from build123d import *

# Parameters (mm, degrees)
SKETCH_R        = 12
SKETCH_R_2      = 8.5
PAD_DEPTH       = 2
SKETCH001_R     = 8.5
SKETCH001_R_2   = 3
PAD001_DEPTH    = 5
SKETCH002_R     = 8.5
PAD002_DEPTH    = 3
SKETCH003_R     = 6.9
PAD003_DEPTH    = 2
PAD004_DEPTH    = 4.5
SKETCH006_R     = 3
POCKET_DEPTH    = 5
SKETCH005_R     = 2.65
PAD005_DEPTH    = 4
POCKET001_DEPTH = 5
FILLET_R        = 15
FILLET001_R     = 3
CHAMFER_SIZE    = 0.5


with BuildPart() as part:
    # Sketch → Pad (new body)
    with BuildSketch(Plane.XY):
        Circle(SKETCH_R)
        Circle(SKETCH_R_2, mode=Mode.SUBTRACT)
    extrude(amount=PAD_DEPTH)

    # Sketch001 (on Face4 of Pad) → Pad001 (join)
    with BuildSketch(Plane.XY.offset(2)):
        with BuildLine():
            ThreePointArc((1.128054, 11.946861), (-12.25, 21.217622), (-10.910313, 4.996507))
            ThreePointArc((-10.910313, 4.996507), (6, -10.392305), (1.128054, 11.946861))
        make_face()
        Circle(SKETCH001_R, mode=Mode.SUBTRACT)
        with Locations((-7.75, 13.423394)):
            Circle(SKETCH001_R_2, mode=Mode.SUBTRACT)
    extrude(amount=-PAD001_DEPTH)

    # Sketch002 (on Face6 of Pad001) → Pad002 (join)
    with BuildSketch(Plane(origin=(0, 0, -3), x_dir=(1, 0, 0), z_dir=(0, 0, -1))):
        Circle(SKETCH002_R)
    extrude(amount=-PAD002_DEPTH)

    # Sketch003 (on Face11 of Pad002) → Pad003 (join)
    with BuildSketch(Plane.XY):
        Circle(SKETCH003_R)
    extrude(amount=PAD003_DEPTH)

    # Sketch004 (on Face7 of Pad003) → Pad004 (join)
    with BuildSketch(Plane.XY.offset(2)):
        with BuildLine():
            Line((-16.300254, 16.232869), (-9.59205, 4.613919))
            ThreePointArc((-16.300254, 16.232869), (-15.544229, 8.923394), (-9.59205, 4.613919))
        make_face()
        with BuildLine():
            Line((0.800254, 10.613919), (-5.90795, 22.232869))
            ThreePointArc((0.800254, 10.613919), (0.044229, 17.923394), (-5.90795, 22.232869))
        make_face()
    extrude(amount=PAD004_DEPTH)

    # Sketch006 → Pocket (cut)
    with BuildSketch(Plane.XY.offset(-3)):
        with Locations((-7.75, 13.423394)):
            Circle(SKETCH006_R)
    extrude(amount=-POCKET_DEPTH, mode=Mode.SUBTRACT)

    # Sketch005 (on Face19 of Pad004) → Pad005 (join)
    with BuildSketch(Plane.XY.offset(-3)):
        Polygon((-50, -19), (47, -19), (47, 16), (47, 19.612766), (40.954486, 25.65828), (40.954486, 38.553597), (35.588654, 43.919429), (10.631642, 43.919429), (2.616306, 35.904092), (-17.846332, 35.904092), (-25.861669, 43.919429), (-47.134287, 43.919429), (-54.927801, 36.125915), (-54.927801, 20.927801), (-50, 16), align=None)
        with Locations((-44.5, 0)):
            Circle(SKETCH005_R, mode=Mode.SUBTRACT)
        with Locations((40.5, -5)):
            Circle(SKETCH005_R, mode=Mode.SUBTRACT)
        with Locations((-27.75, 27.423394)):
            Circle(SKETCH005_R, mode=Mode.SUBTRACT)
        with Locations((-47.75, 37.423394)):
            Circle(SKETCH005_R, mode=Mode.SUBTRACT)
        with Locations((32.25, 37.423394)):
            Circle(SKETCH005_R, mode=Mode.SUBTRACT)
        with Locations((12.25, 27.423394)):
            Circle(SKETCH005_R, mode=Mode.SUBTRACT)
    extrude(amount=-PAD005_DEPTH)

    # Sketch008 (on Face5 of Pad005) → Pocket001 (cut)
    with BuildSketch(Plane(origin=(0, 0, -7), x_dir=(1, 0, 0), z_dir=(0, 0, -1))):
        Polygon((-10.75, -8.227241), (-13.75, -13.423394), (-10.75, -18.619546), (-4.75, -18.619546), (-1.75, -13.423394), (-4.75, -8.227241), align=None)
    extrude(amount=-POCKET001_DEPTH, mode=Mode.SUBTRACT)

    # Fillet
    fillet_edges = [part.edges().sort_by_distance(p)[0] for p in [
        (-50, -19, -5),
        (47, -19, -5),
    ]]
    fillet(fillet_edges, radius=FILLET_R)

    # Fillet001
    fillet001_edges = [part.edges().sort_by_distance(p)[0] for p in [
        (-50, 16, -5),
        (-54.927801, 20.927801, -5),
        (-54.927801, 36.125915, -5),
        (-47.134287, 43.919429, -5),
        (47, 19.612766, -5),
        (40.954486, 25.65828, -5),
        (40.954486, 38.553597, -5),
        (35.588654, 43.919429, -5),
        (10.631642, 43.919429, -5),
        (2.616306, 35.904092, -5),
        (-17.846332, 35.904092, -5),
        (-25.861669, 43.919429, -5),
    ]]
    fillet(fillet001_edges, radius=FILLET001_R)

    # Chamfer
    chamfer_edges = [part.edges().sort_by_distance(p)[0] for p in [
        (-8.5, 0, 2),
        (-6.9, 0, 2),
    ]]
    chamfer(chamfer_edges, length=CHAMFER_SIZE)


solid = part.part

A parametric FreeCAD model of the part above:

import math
import FreeCAD as App
import Part
import Sketcher
Q = App.Units.Quantity


def edges_at(feature, points):
    """Names of the edges that pass closest to the given points."""
    edges = feature.Shape.Edges
    near = lambda p: min(range(len(edges)), key=lambda i: edges[i].distToShape(Part.Vertex(*p))[0])
    return sorted({f"Edge{near(p) + 1}" for p in points})


def add_polygon(sketch, points):
    """Adds a closed chain of lines whose ends are joined by coincident constraints."""
    first, n = sketch.GeometryCount, len(points)
    for a, b in zip(points, points[1:] + points[:1]):
        sketch.addGeometry(Part.LineSegment(App.Vector(*a, 0), App.Vector(*b, 0)), False)
    for i in range(n):
        sketch.addConstraint(Sketcher.Constraint("Coincident", first + i, 2, first + (i + 1) % n, 1))

doc = App.newDocument("Part")
body = doc.addObject("PartDesign::Body", "Body")

# Sketch on XY plane
sketch1 = body.newObject("Sketcher::SketchObject", "Sketch")
sketch1.AttachmentSupport = (doc.getObject("XY_Plane"), [""])
sketch1.MapMode = "FlatFace"
sketch1.addGeometry(Part.Circle(App.Vector(0, 0, 0), App.Vector(0, 0, 1), 12), False)
sketch1.addGeometry(Part.Circle(App.Vector(0, 0, 0), App.Vector(0, 0, 1), 8), False)
sketch1.addConstraint(Sketcher.Constraint("Coincident", 0, 3, -1, 1))
sketch1.addConstraint(Sketcher.Constraint("Coincident", 1, 3, -1, 1))
sketch1.addConstraint(Sketcher.Constraint("Diameter", 0, 24.0))
sketch1.addConstraint(Sketcher.Constraint("Diameter", 1, 17.0))
pad1 = body.newObject("PartDesign::Pad", "Pad")
pad1.Profile = sketch1
pad1.Length = 2

# Sketch on XY plane
sketch2 = body.newObject("Sketcher::SketchObject", "Sketch001")
sketch2.AttachmentSupport = (doc.getObject("XY_Plane"), [""])
sketch2.MapMode = "FlatFace"
sketch2.AttachmentOffset = App.Placement(App.Vector(0, 0, 2), App.Rotation())
sketch2.addGeometry(Part.ArcOfCircle(Part.Circle(App.Vector(-7.8, 13.4, 0), App.Vector(0, 0, 1), 9), math.radians(-9), math.radians(249)), False)
sketch2.addGeometry(Part.ArcOfCircle(Part.Circle(App.Vector(0, 0, 0), App.Vector(0, 0, 1), 12), math.radians(155), math.radians(445)), False)
sketch2.addGeometry(Part.Circle(App.Vector(0, 0, 0), App.Vector(0, 0, 1), 8.5), False)
sketch2.addGeometry(Part.Circle(App.Vector(-7.8, 13.4, 0), App.Vector(0, 0, 1), 3), False)
sketch2.addConstraint(Sketcher.Constraint("Coincident", 0, 1, 1, 2))
sketch2.addConstraint(Sketcher.Constraint("Coincident", 1, 1, 0, 2))
sketch2.addConstraint(Sketcher.Constraint("Coincident", 1, 3, -1, 1))
sketch2.addConstraint(Sketcher.Constraint("Coincident", 2, 3, -1, 1))
sketch2.addConstraint(Sketcher.Constraint("Coincident", 3, 3, 0, 3))
sketch2.addConstraint(Sketcher.Constraint("Diameter", 2, 17.0))
sketch2.addConstraint(Sketcher.Constraint("Diameter", 3, 6.0))
sketch2.addConstraint(Sketcher.Constraint("Radius", 0, 9.0))
sketch2.addConstraint(Sketcher.Constraint("Radius", 1, 12.0))
sketch2.addConstraint(Sketcher.Constraint("DistanceX", 0, 3, -1, 1, 7.75))
sketch2.addConstraint(Sketcher.Constraint("DistanceY", -1, 1, 0, 3, 13.423394))
pad2 = body.newObject("PartDesign::Pad", "Pad001")
pad2.Profile = sketch2
pad2.Length = 5
pad2.Reversed = True

# Sketch on XY plane
sketch3 = body.newObject("Sketcher::SketchObject", "Sketch002")
sketch3.AttachmentSupport = (doc.getObject("XY_Plane"), [""])
sketch3.MapMode = "FlatFace"
sketch3.AttachmentOffset = App.Placement(App.Vector(0, 0, -3), App.Rotation())
sketch3.addGeometry(Part.Circle(App.Vector(0, 0, 0), App.Vector(0, 0, 1), 8), False)
sketch3.addConstraint(Sketcher.Constraint("Coincident", 0, 3, -1, 1))
sketch3.addConstraint(Sketcher.Constraint("Diameter", 0, 17.0))
pad3 = body.newObject("PartDesign::Pad", "Pad002")
pad3.Profile = sketch3
pad3.Length = 3

# Sketch on XY plane
sketch4 = body.newObject("Sketcher::SketchObject", "Sketch003")
sketch4.AttachmentSupport = (doc.getObject("XY_Plane"), [""])
sketch4.MapMode = "FlatFace"
sketch4.addGeometry(Part.Circle(App.Vector(0, 0, 0), App.Vector(0, 0, 1), 7), False)
sketch4.addConstraint(Sketcher.Constraint("Coincident", 0, 3, -1, 1))
sketch4.addConstraint(Sketcher.Constraint("Diameter", 0, 13.8))
pad4 = body.newObject("PartDesign::Pad", "Pad003")
pad4.Profile = sketch4
pad4.Length = 2

# Sketch on XY plane
sketch5 = body.newObject("Sketcher::SketchObject", "Sketch004")
sketch5.AttachmentSupport = (doc.getObject("XY_Plane"), [""])
sketch5.MapMode = "FlatFace"
sketch5.AttachmentOffset = App.Placement(App.Vector(0, 0, 2), App.Rotation())
sketch5.addGeometry(Part.LineSegment(App.Vector(-10, 5, 0), App.Vector(-16, 16, 0)), False)
sketch5.addGeometry(Part.ArcOfCircle(Part.Circle(App.Vector(-8, 13, 0), App.Vector(0, 0, 1), 9), math.radians(162), math.radians(258)), False)
sketch5.addGeometry(Part.LineSegment(App.Vector(-6, 22, 0), App.Vector(1, 11, 0)), False)
sketch5.addGeometry(Part.ArcOfCircle(Part.Circle(App.Vector(-8, 13, 0), App.Vector(0, 0, 1), 9), math.radians(-18), math.radians(78)), False)
sketch5.addConstraint(Sketcher.Constraint("Coincident", 0, 1, 1, 2))
sketch5.addConstraint(Sketcher.Constraint("Coincident", 1, 1, 0, 2))
sketch5.addConstraint(Sketcher.Constraint("Coincident", 2, 1, 3, 2))
sketch5.addConstraint(Sketcher.Constraint("Coincident", 3, 1, 2, 2))
sketch5.addConstraint(Sketcher.Constraint("Coincident", 3, 3, 1, 3))
sketch5.addConstraint(Sketcher.Constraint("Equal", 1, 3))
sketch5.addConstraint(Sketcher.Constraint("Parallel", 0, 2))
sketch5.addConstraint(Sketcher.Constraint("Equal", 0, 2))
sketch5.addConstraint(Sketcher.Constraint("Radius", 1, 8.999999))
sketch5.addConstraint(Sketcher.Constraint("Angle", 0, Q("120 deg")))
sketch5.addConstraint(Sketcher.Constraint("DistanceY", 1, 1, 2, 1, 6.0))
sketch5.addConstraint(Sketcher.Constraint("DistanceX", 1, 3, -1, 1, 7.750001))
sketch5.addConstraint(Sketcher.Constraint("DistanceY", -1, 1, 0, 1, 4.613919))
pad5 = body.newObject("PartDesign::Pad", "Pad004")
pad5.Profile = sketch5
pad5.Length = 4.5

# Sketch on XY plane
sketch6 = body.newObject("Sketcher::SketchObject", "Sketch005")
sketch6.AttachmentSupport = (doc.getObject("XY_Plane"), [""])
sketch6.MapMode = "FlatFace"
sketch6.AttachmentOffset = App.Placement(App.Vector(0, 0, -3), App.Rotation())
sketch6.addGeometry(Part.Circle(App.Vector(-7.8, 13.4, 0), App.Vector(0, 0, 1), 3), False)
sketch6.addConstraint(Sketcher.Constraint("Diameter", 0, 6.0))
sketch6.addConstraint(Sketcher.Constraint("DistanceX", 0, 3, -1, 1, 7.75))
sketch6.addConstraint(Sketcher.Constraint("DistanceY", -1, 1, 0, 3, 13.423394))
pocket1 = body.newObject("PartDesign::Pocket", "Pocket")
pocket1.Profile = sketch6
pocket1.Length = 5

# Sketch on XY plane
sketch7 = body.newObject("Sketcher::SketchObject", "Sketch006")
sketch7.AttachmentSupport = (doc.getObject("XY_Plane"), [""])
sketch7.MapMode = "FlatFace"
sketch7.AttachmentOffset = App.Placement(App.Vector(0, 0, -3), App.Rotation())
add_polygon(sketch7, [(-50, -19), (47, -19), (47, 19.6), (41, 25.7), (41, 38.6), (35.6, 43.9), (10.6, 43.9), (2.6, 35.9), (-17.8, 35.9), (-25.9, 43.9), (-47.1, 43.9), (-54.9, 36.1), (-54.9, 20.9), (-50, 16)])  # lines 0-13
sketch7.addGeometry(Part.Circle(App.Vector(-44.5, 0, 0), App.Vector(0, 0, 1), 2.6), False)  # 14
sketch7.addGeometry(Part.Circle(App.Vector(40.5, -5, 0), App.Vector(0, 0, 1), 2.6), False)  # 15
sketch7.addGeometry(Part.Circle(App.Vector(-27.8, 27.4, 0), App.Vector(0, 0, 1), 2.6), False)  # 16
sketch7.addGeometry(Part.Circle(App.Vector(-47.8, 37.4, 0), App.Vector(0, 0, 1), 2.6), False)  # 17
sketch7.addGeometry(Part.Circle(App.Vector(12.2, 27.4, 0), App.Vector(0, 0, 1), 2.6), False)  # 18
sketch7.addGeometry(Part.Circle(App.Vector(32.2, 37.4, 0), App.Vector(0, 0, 1), 2.6), False)  # 19
sketch7.addConstraint(Sketcher.Constraint("Horizontal", 0))
sketch7.addConstraint(Sketcher.Constraint("Vertical", 1))
sketch7.addConstraint(Sketcher.Constraint("Vertical", 3))
sketch7.addConstraint(Sketcher.Constraint("Horizontal", 5))
sketch7.addConstraint(Sketcher.Constraint("Horizontal", 7))
sketch7.addConstraint(Sketcher.Constraint("Horizontal", 9))
sketch7.addConstraint(Sketcher.Constraint("Vertical", 11))
sketch7.addConstraint(Sketcher.Constraint("Vertical", 13))
sketch7.addConstraint(Sketcher.Constraint("Equal", 14, 15))
sketch7.addConstraint(Sketcher.Constraint("Equal", 15, 16))
sketch7.addConstraint(Sketcher.Constraint("Equal", 16, 17))
sketch7.addConstraint(Sketcher.Constraint("Equal", 17, 18))
sketch7.addConstraint(Sketcher.Constraint("Equal", 18, 19))
sketch7.addConstraint(Sketcher.Constraint("PointOnObject", 14, 3, -1))
sketch7.addConstraint(Sketcher.Constraint("Parallel", 2, 4))
sketch7.addConstraint(Sketcher.Constraint("Perpendicular", 4, 6))
sketch7.addConstraint(Sketcher.Constraint("Perpendicular", 6, 8))
sketch7.addConstraint(Sketcher.Constraint("Perpendicular", 8, 10))
sketch7.addConstraint(Sketcher.Constraint("Perpendicular", 10, 12))
sketch7.addConstraint(Sketcher.Constraint("Horizontal", 16, 3, 18, 3))
sketch7.addConstraint(Sketcher.Constraint("Horizontal", 17, 3, 19, 3))
sketch7.addConstraint(Sketcher.Constraint("Horizontal", 5, 2, 8, 2))
sketch7.addConstraint(Sketcher.Constraint("Equal", 6, 8))
sketch7.addConstraint(Sketcher.Constraint("Diameter", 14, 5.3))
sketch7.addConstraint(Sketcher.Constraint("DistanceX", 0, 1, 0, 2, 97.0))
sketch7.addConstraint(Sketcher.Constraint("DistanceY", 13, 2, 13, 1, 35.0))
sketch7.addConstraint(Sketcher.Constraint("DistanceY", 15, 3, -1, 1, 5.0))
sketch7.addConstraint(Sketcher.Constraint("DistanceX", -1, 1, 0, 2, 47.0))
sketch7.addConstraint(Sketcher.Constraint("DistanceY", 0, 2, -1, 1, 19.0))
sketch7.addConstraint(Sketcher.Constraint("DistanceX", 14, 3, 15, 3, 85.0))
sketch7.addConstraint(Sketcher.Constraint("DistanceX", 17, 3, 16, 3, 20.0))
sketch7.addConstraint(Sketcher.Constraint("DistanceY", 16, 3, 17, 3, 10.0))
sketch7.addConstraint(Sketcher.Constraint("DistanceX", 16, 3, 18, 3, 40.0))
sketch7.addConstraint(Sketcher.Constraint("DistanceX", 18, 3, 19, 3, 20.0))
sketch7.addConstraint(Sketcher.Constraint("DistanceX", 14, 3, -1, 1, 44.5))
sketch7.addConstraint(Sketcher.Constraint("DistanceX", 16, 3, -1, 1, 27.75))
sketch7.addConstraint(Sketcher.Constraint("Distance", 8, 11.335398))
sketch7.addConstraint(Sketcher.Constraint("DistanceX", 5, 2, 5, 1, 24.957012))
sketch7.addConstraint(Sketcher.Constraint("DistanceX", 9, 2, 9, 1, 21.272618))
sketch7.addConstraint(Sketcher.Constraint("DistanceX", 10, 2, -1, 1, 54.927801))
sketch7.addConstraint(Sketcher.Constraint("DistanceX", 7, 2, 7, 1, 20.462638))
sketch7.addConstraint(Sketcher.Constraint("DistanceY", 1, 1, 1, 2, 38.612766))
sketch7.addConstraint(Sketcher.Constraint("DistanceY", 3, 1, 3, 2, 12.895317))
sketch7.addConstraint(Sketcher.Constraint("DistanceY", 11, 2, 11, 1, 15.198114))
sketch7.addConstraint(Sketcher.Constraint("DistanceY", -1, 1, 2, 2, 25.65828))
sketch7.addConstraint(Sketcher.Constraint("DistanceY", 1, 2, 19, 3, 17.810628))
pad6 = body.newObject("PartDesign::Pad", "Pad005")
pad6.Profile = sketch7
pad6.Length = 4
pad6.Reversed = True

# Sketch on XY plane
sketch8 = body.newObject("Sketcher::SketchObject", "Sketch007")
sketch8.AttachmentSupport = (doc.getObject("XY_Plane"), [""])
sketch8.MapMode = "FlatFace"
sketch8.AttachmentOffset = App.Placement(App.Vector(0, 0, -7), App.Rotation())
add_polygon(sketch8, [(-11, 8), (-14, 13), (-11, 19), (-5, 19), (-2, 13), (-5, 8)])  # lines 0-5
sketch8.addConstraint(Sketcher.Constraint("Horizontal", 2))
sketch8.addConstraint(Sketcher.Constraint("Horizontal", 5))
sketch8.addConstraint(Sketcher.Constraint("Parallel", 0, 3))
sketch8.addConstraint(Sketcher.Constraint("Parallel", 1, 4))
sketch8.addConstraint(Sketcher.Constraint("Horizontal", 0, 2, 3, 2))
sketch8.addConstraint(Sketcher.Constraint("Vertical", 2, 2, 4, 2))
sketch8.addConstraint(Sketcher.Constraint("Vertical", 1, 2, 5, 2))
sketch8.addConstraint(Sketcher.Constraint("DistanceX", 2, 1, 2, 2, 6.0))
sketch8.addConstraint(Sketcher.Constraint("Angle", 0, Q("119.999997 deg")))
sketch8.addConstraint(Sketcher.Constraint("Distance", 0, 6.0))
sketch8.addConstraint(Sketcher.Constraint("DistanceX", 0, 2, -1, 1, 13.75))
sketch8.addConstraint(Sketcher.Constraint("DistanceY", -1, 1, 4, 2, 8.227241))
pocket2 = body.newObject("PartDesign::Pocket", "Pocket001")
pocket2.Profile = sketch8
pocket2.Length = 5
pocket2.Reversed = True
doc.recompute()

fillet = body.newObject("PartDesign::Fillet", "Fillet")
fillet.Base = (pocket2, edges_at(pocket2, [(-50, -19, -5), (47, -19, -5)]))
fillet.Radius = 15
doc.recompute()

fillet2 = body.newObject("PartDesign::Fillet", "Fillet001")
fillet2.Base = (fillet, edges_at(fillet, [
    (-50, 16, -5),
    (-54.928, 20.928, -5),
    (-54.928, 36.126, -5),
    (-47.134, 43.919, -5),
    (47, 19.613, -5),
    (40.954, 25.658, -5),
    (40.954, 38.554, -5),
    (35.589, 43.919, -5),
    (10.632, 43.919, -5),
    (2.616, 35.904, -5),
    (-17.846, 35.904, -5),
    (-25.862, 43.919, -5),
]))
fillet2.Radius = 3
doc.recompute()

chamfer = body.newObject("PartDesign::Chamfer", "Chamfer")
chamfer.Base = (fillet2, edges_at(fillet2, [(-8.5, 0, 2), (-6.9, 0, 2)]))
chamfer.Size = 0.5

doc.recompute()
